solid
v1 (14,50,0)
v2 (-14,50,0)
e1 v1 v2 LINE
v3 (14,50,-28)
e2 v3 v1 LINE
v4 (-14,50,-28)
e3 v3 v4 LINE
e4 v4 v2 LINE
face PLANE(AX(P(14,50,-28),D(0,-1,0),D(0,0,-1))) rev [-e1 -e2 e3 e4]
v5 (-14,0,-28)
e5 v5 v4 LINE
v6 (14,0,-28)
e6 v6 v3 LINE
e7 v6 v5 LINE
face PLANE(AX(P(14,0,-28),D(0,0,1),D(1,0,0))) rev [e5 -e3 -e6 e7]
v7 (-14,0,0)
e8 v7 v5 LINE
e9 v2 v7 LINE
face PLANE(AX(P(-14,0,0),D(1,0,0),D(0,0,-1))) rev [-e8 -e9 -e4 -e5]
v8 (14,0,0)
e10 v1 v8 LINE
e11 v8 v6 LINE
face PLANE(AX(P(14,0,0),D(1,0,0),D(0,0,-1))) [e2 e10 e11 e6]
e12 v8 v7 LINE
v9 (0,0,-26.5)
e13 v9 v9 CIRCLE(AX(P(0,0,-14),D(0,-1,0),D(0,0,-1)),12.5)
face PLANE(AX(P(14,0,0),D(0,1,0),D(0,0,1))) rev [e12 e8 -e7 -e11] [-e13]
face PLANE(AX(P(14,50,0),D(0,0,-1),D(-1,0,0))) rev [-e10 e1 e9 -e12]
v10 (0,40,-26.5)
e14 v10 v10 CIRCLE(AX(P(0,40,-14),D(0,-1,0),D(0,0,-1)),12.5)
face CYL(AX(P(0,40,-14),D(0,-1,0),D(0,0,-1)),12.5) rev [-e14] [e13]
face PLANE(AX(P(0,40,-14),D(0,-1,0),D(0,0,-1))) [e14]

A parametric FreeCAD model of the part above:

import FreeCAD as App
import Part
import Sketcher

V = App.Vector

doc = App.newDocument("Part")
body = doc.addObject("PartDesign::Body", "Body")

sketch1 = body.newObject("Sketcher::SketchObject", "Sketch")
sketch1.AttachmentSupport = (doc.getObject("YZ_Plane"), [""])
sketch1.MapMode = "FlatFace"
sketch1.addGeometry(Part.LineSegment(V(50, 0, 0), V(0, 0, 0)), False)
sketch1.addGeometry(Part.LineSegment(V(0, 0, 0), V(0, -28, 0)), False)
sketch1.addGeometry(Part.LineSegment(V(0, -28, 0), V(50, -28, 0)), False)
sketch1.addGeometry(Part.LineSegment(V(50, -28, 0), V(50, 0, 0)), False)
sketch1.addConstraint(Sketcher.Constraint("Coincident", 0, 2, 1, 1))
sketch1.addConstraint(Sketcher.Constraint("Coincident", 1, 2, 2, 1))
sketch1.addConstraint(Sketcher.Constraint("Coincident", 2, 2, 3, 1))
sketch1.addConstraint(Sketcher.Constraint("Coincident", 3, 2, 0, 1))
sketch1.addConstraint(Sketcher.Constraint("Horizontal", 0))
sketch1.addConstraint(Sketcher.Constraint("Vertical", 1))
sketch1.addConstraint(Sketcher.Constraint("Horizontal", 2))
sketch1.addConstraint(Sketcher.Constraint("Vertical", 3))
sketch1.addConstraint(Sketcher.Constraint("Coincident", 0, 2, -1, 1))
sketch1.addConstraint(Sketcher.Constraint("DistanceX", 0, 2, 0, 1, 50.0))
sketch1.addConstraint(Sketcher.Constraint("DistanceY", 1, 2, 1, 1, 28.0))
pad1 = body.newObject("PartDesign::Pad", "Pad")
pad1.Profile = sketch1
pad1.Length = 28
pad1.Midplane = True

sketch2 = body.newObject("Sketcher::SketchObject", "Sketch001")
sketch2.AttachmentSupport = (doc.getObject("XZ_Plane"), [""])
sketch2.MapMode = "FlatFace"
sketch2.addGeometry(Part.Circle(V(0, -14, 0), V(0, 0, 1), 12), False)
sketch2.addConstraint(Sketcher.Constraint("PointOnObject", 0, 3, -2))
sketch2.addConstraint(Sketcher.Constraint("Diameter", 0, 25.0))
sketch2.addConstraint(Sketcher.Constraint("DistanceY", 0, 3, -1, 1, 14.0))
pocket1 = body.newObject("PartDesign::Pocket", "Pocket")
pocket1.Profile = sketch2
pocket1.Length = 40

doc.recompute()
